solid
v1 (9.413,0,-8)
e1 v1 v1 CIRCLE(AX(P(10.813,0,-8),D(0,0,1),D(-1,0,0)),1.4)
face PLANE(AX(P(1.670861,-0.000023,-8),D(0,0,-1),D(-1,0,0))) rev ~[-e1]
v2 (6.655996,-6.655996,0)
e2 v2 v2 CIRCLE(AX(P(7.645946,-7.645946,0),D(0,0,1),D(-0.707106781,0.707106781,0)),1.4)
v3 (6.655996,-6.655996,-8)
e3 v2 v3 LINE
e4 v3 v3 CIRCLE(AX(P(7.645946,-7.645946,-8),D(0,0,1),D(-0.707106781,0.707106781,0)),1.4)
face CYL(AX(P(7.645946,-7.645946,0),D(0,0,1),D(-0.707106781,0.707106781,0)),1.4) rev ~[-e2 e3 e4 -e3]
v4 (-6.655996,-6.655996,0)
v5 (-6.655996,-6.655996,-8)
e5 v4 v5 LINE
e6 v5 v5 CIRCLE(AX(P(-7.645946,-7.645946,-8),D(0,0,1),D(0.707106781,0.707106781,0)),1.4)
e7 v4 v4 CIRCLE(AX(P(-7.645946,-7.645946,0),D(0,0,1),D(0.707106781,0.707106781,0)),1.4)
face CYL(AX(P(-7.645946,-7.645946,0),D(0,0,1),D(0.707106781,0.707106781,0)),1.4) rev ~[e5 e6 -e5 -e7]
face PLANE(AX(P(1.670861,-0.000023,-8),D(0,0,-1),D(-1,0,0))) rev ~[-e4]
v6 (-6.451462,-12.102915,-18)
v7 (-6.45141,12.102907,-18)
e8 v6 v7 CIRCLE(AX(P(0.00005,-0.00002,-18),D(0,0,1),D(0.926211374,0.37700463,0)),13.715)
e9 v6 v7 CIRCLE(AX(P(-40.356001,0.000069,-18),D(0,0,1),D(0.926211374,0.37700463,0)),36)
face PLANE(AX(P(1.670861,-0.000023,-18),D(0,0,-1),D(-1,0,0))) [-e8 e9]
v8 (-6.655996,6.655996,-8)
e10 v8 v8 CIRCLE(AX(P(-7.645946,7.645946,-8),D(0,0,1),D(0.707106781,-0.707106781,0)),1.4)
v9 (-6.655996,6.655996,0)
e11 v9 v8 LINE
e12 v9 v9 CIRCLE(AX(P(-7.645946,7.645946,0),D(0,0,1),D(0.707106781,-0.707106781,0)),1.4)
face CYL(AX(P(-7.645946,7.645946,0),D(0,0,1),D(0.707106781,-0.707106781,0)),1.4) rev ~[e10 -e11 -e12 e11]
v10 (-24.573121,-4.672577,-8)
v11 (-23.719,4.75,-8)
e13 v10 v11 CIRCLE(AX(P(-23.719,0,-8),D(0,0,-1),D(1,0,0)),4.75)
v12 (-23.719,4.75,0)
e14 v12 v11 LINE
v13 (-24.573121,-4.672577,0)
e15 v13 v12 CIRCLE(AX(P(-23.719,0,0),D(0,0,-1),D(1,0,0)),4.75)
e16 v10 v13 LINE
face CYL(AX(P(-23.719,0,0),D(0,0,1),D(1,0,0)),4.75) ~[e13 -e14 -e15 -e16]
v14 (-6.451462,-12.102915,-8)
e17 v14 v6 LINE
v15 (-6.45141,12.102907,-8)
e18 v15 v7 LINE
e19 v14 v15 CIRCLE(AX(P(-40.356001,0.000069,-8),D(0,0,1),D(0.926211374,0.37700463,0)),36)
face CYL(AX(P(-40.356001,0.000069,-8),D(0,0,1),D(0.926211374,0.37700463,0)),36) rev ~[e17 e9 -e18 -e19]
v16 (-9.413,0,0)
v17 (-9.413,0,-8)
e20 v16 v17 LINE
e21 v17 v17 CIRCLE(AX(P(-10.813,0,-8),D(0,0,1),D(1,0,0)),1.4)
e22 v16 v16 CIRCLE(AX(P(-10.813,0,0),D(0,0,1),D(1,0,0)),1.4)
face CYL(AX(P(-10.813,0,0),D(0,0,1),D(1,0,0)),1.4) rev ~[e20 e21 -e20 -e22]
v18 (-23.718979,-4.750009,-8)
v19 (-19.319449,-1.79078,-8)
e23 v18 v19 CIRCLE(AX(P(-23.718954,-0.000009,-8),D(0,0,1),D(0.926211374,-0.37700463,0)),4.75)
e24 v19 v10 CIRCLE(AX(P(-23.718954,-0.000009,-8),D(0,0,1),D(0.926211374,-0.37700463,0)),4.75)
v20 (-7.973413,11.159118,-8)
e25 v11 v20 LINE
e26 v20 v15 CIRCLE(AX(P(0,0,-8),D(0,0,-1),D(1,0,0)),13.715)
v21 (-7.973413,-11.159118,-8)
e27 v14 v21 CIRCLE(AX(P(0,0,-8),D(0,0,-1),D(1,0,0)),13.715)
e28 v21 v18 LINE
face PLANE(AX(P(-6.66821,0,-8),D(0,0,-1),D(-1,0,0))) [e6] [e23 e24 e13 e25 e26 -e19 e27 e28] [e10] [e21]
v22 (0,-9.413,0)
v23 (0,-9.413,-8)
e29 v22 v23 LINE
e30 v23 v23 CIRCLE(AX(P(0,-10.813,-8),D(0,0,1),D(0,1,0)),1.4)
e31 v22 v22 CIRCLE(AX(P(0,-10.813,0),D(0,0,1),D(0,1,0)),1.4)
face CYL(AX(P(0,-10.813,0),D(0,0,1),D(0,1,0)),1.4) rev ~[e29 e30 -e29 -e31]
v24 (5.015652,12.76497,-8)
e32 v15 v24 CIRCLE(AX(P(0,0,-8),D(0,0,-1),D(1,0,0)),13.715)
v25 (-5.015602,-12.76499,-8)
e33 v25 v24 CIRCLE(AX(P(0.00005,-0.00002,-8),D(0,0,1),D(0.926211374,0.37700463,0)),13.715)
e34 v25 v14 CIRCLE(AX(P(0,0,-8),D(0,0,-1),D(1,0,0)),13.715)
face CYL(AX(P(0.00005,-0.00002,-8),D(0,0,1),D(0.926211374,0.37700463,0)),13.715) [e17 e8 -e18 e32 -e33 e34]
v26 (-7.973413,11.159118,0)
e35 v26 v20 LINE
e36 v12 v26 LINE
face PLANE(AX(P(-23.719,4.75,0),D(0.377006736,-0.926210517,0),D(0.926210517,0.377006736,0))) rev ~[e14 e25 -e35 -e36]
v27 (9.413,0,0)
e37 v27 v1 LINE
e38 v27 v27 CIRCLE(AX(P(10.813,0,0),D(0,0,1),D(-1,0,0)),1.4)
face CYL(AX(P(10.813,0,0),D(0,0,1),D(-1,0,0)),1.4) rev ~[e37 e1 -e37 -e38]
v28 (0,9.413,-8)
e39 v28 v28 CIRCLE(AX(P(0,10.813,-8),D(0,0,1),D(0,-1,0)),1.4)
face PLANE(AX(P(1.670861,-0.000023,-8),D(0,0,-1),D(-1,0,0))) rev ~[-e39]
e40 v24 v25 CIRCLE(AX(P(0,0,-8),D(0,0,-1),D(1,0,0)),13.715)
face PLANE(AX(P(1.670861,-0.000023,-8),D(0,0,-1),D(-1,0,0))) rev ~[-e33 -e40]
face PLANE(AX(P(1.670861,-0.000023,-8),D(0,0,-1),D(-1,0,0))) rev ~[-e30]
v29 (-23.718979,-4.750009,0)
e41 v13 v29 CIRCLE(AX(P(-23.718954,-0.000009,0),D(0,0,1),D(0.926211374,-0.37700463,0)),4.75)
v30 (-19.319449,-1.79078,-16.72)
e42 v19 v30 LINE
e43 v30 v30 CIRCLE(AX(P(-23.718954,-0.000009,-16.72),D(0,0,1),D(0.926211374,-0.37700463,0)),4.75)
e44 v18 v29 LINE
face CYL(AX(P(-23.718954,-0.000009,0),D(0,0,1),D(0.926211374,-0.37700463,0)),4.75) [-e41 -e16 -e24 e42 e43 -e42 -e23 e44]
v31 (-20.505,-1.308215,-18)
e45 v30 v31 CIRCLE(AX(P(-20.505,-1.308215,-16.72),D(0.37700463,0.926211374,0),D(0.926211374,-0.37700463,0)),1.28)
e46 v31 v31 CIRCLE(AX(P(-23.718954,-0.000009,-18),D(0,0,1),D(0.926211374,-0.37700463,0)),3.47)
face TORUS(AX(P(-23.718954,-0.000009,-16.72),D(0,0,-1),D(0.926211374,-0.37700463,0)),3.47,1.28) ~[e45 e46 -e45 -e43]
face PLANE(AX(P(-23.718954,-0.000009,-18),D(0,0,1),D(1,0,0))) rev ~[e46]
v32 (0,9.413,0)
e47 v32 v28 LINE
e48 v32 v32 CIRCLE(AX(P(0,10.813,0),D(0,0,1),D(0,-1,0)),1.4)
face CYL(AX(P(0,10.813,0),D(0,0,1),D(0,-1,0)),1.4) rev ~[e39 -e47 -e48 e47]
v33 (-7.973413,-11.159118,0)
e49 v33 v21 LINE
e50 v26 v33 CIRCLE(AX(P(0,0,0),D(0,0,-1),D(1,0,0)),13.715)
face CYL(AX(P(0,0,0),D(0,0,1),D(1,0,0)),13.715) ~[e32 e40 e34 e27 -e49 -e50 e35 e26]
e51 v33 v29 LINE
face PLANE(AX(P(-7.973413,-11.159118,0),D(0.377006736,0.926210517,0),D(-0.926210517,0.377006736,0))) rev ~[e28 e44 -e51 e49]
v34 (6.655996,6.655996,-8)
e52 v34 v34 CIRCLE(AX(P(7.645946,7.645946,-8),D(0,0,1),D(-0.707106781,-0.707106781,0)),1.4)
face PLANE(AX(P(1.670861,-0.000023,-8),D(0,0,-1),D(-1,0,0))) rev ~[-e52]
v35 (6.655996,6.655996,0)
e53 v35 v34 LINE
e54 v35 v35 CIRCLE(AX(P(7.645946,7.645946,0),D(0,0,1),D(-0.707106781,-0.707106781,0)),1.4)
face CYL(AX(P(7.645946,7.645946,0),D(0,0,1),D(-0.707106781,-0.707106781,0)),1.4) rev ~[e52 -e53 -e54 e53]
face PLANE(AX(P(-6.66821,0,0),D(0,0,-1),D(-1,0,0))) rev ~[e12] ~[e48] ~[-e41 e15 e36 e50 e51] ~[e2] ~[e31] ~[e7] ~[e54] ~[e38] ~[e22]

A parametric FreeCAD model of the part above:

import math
import FreeCAD as App
import Part
import Sketcher


def edges_at(feature, points):
    """Names of the edges that pass closest to the given points."""
    edges = feature.Shape.Edges
    near = lambda p: min(range(len(edges)), key=lambda i: edges[i].distToShape(Part.Vertex(*p))[0])
    return sorted({f"Edge{near(p) + 1}" for p in points})

doc = App.newDocument("Part")
body = doc.addObject("PartDesign::Body", "Body")

sketch1 = body.newObject("Sketcher::SketchObject", "Sketch")
sketch1.AttachmentSupport = (doc.getObject("XY_Plane"), [""])
sketch1.MapMode = "FlatFace"
sketch1.addGeometry([
    Part.LineSegment(App.Vector(-23.719, -4.75, 0), App.Vector(-7.9734, -11.1591, 0)),
    Part.ArcOfCircle(Part.Circle(App.Vector(0, 0, 0), App.Vector(0, 0, 1), 13.714978), math.radians(-125.546565), math.radians(125.546565)),
    Part.LineSegment(App.Vector(-7.9734, 11.1591, 0), App.Vector(-23.719, 4.75, 0)),
    Part.ArcOfCircle(Part.Circle(App.Vector(-23.719, 0, 0), App.Vector(0, 0, 1), 4.75), math.radians(90), math.radians(270)),
], False)
sketch1.addConstraint([
    Sketcher.Constraint("Coincident", 0, 2, 1, 1),
    Sketcher.Constraint("Coincident", 1, 2, 2, 1),
    Sketcher.Constraint("Coincident", 2, 2, 3, 1),
    Sketcher.Constraint("Coincident", 3, 2, 0, 1),
    Sketcher.Constraint("Coincident", 1, 3, -1, 1),
    Sketcher.Constraint("Symmetric", 2, 2, 3, 2, -1),
    Sketcher.Constraint("Vertical", 0, 2, 1, 2),
    Sketcher.Constraint("Vertical", 3, 3, 2, 2),
    Sketcher.Constraint("Radius", 3, 4.75),
    Sketcher.Constraint("Distance", 0, 17.0),
    Sketcher.Constraint("Radius", 1, 13.715),
    Sketcher.Constraint("DistanceX", 3, 3, -1, 1, 23.719),
])
pad1 = body.newObject("PartDesign::Pad", "Pad")
pad1.Profile = sketch1
pad1.Length = 8
pad1.Reversed = True

sketch2 = body.newObject("Sketcher::SketchObject", "Sketch001")
sketch2.AttachmentSupport = (doc.getObject("XY_Plane"), [""])
sketch2.MapMode = "FlatFace"
sketch2.addGeometry(Part.Circle(App.Vector(-10.813, 0, 0), App.Vector(0, 0, 1), 1.4), False)
sketch2.addConstraint([
    Sketcher.Constraint("PointOnObject", 0, 3, -1),
    Sketcher.Constraint("Diameter", 0, 2.8),
    Sketcher.Constraint("DistanceX", 0, 3, -1, 1, 10.813),
])
pocket1 = body.newObject("PartDesign::Pocket", "Pocket")
pocket1.Profile = sketch2
pocket1.Length = 42.8094
doc.recompute()

polarpattern = body.newObject("PartDesign::PolarPattern", "PolarPattern")
polarpattern.Originals = [pocket1]
polarpattern.Axis = (doc.getObject("Z_Axis"), [""])
polarpattern.Angle = 360
polarpattern.Occurrences = 8
body.Tip = polarpattern

sketch3 = body.newObject("Sketcher::SketchObject", "Sketch002")
sketch3.AttachmentSupport = (doc.getObject("XY_Plane"), [""])
sketch3.MapMode = "FlatFace"
sketch3.AttachmentOffset = App.Placement(App.Vector(0, 0, -8), App.Rotation())
sketch3.addGeometry([
    Part.ArcOfCircle(Part.Circle(App.Vector(0.00005, -0.00002, 0), App.Vector(0, 0, 1), 13.715029), math.radians(-118.060017), math.radians(118.060009)),
    Part.ArcOfCircle(Part.Circle(App.Vector(-40.356001, 0.000069, 0), App.Vector(0, 0, 1), 36.000015), math.radians(-19.645161), math.radians(19.644914)),
], False)
sketch3.addConstraint([
    Sketcher.Constraint("Coincident", 0, 1, 1, 1),
    Sketcher.Constraint("Coincident", 1, 2, 0, 2),
    Sketcher.Constraint("Coincident", 0, 3, -1, 1),
    Sketcher.Constraint("PointOnObject", 1, 3, -1),
    Sketcher.Constraint("Radius", 1, 36.0),
    Sketcher.Constraint("Radius", 0, 13.715),
    Sketcher.Constraint("DistanceX", 1, 3, -1, 1, 40.356),
])
pad2 = body.newObject("PartDesign::Pad", "Pad001")
pad2.Profile = sketch3
pad2.Length = 10
pad2.Reversed = True

sketch4 = body.newObject("Sketcher::SketchObject", "Sketch003")
sketch4.AttachmentSupport = (doc.getObject("XY_Plane"), [""])
sketch4.MapMode = "FlatFace"
sketch4.addGeometry(Part.Circle(App.Vector(-23.718954, -0.000008, 0), App.Vector(0, 0, 1), 4.75), False)
sketch4.addConstraint([
    Sketcher.Constraint("PointOnObject", 0, 3, -1),
    Sketcher.Constraint("Diameter", 0, 9.5),
    Sketcher.Constraint("DistanceX", 0, 3, -1, 1, 23.719),
])
pad3 = body.newObject("PartDesign::Pad", "Pad002")
pad3.Profile = sketch4
pad3.Length = 18
pad3.Reversed = True
doc.recompute()

fillet = body.newObject("PartDesign::Fillet", "Fillet")
fillet.Base = (pad3, edges_at(pad3, [(-28.119, 1.791, -18)]))
fillet.Radius = 1.28

doc.recompute()
